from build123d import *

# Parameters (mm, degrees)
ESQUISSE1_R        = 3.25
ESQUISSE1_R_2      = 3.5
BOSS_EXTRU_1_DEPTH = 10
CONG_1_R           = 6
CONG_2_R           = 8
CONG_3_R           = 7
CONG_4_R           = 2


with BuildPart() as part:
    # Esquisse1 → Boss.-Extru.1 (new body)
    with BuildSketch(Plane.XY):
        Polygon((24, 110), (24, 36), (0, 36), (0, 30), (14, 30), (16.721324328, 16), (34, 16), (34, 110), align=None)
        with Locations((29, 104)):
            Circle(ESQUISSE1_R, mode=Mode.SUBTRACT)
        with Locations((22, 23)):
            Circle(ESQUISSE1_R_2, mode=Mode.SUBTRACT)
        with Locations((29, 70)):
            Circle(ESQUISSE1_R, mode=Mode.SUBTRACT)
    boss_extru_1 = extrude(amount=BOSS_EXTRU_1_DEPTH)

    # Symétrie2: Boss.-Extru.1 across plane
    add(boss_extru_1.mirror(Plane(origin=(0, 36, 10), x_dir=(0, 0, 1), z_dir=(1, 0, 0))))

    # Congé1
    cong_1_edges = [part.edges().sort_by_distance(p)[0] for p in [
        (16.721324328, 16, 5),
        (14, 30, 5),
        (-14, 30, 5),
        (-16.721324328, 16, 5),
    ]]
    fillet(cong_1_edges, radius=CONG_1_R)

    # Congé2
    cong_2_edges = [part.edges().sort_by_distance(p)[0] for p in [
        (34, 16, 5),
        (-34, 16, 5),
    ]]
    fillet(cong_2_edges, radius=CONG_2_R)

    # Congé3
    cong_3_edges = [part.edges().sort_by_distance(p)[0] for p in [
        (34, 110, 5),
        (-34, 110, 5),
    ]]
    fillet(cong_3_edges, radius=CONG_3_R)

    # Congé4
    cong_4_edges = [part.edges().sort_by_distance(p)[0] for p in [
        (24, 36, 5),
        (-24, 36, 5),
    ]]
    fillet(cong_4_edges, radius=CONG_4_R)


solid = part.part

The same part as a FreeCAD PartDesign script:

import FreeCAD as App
import Part
import Sketcher

V = App.Vector
Q = App.Units.Quantity


def edges_at(feature, points):
    """Names of the edges that pass closest to the given points."""
    edges = feature.Shape.Edges
    near = lambda p: min(range(len(edges)), key=lambda i: edges[i].distToShape(Part.Vertex(*p))[0])
    return sorted({f"Edge{near(p) + 1}" for p in points})

doc = App.newDocument("Part")
body = doc.addObject("PartDesign::Body", "Body")

# Sketch on XY plane
sketch1 = body.newObject("Sketcher::SketchObject", "Sketch")
sketch1.AttachmentSupport = (doc.getObject("XY_Plane"), [""])
sketch1.MapMode = "FlatFace"
sketch1.addGeometry([
    Part.LineSegment(V(24, 110, 0), V(24, 36, 0)),  # 0
    Part.LineSegment(V(24, 36, 0), V(0, 36, 0)),  # 1
    Part.LineSegment(V(0, 36, 0), V(0, 30, 0)),  # 2
    Part.LineSegment(V(0, 30, 0), V(14, 30, 0)),  # 3
    Part.LineSegment(V(14, 30, 0), V(16.7, 16, 0)),  # 4
    Part.LineSegment(V(16.7, 16, 0), V(34, 16, 0)),  # 5
    Part.LineSegment(V(34, 16, 0), V(34, 110, 0)),  # 6
    Part.LineSegment(V(34, 110, 0), V(24, 110, 0)),  # 7
    Part.Circle(V(22, 23, 0), V(0, 0, 1), 3.5),  # 8
    Part.Circle(V(29, 70, 0), V(0, 0, 1), 3.2),  # 9
    Part.Circle(V(29, 104, 0), V(0, 0, 1), 3.2),  # 10
], False)
sketch1.addConstraint([
    Sketcher.Constraint("Coincident", 0, 2, 1, 1),
    Sketcher.Constraint("Coincident", 1, 2, 2, 1),
    Sketcher.Constraint("Coincident", 2, 2, 3, 1),
    Sketcher.Constraint("Coincident", 3, 2, 4, 1),
    Sketcher.Constraint("Coincident", 4, 2, 5, 1),
    Sketcher.Constraint("Coincident", 5, 2, 6, 1),
    Sketcher.Constraint("Coincident", 6, 2, 7, 1),
    Sketcher.Constraint("Coincident", 7, 2, 0, 1),
    Sketcher.Constraint("Vertical", 0),
    Sketcher.Constraint("Horizontal", 1),
    Sketcher.Constraint("Vertical", 2),
    Sketcher.Constraint("Horizontal", 3),
    Sketcher.Constraint("Horizontal", 5),
    Sketcher.Constraint("Vertical", 6),
    Sketcher.Constraint("Horizontal", 7),
    Sketcher.Constraint("Equal", 9, 10),
    Sketcher.Constraint("PointOnObject", 1, 2, -2),
    Sketcher.Constraint("Vertical", 9, 3, 10, 3),
    Sketcher.Constraint("Diameter", 8, Q("7 mm")),
    Sketcher.Constraint("Diameter", 9, Q("6.5 mm")),
    Sketcher.Constraint("DistanceX", 1, 2, 1, 1, Q("24 mm")),
    Sketcher.Constraint("DistanceX", 3, 1, 3, 2, Q("14 mm")),
    Sketcher.Constraint("DistanceX", 7, 2, 7, 1, Q("10 mm")),
    Sketcher.Constraint("DistanceY", 0, 2, 0, 1, Q("74 mm")),
    Sketcher.Constraint("DistanceY", 2, 2, 2, 1, Q("6 mm")),
    Sketcher.Constraint("DistanceY", 6, 1, 6, 2, Q("94 mm")),
    Sketcher.Constraint("Angle", 4, Q("-79 deg")),
    Sketcher.Constraint("DistanceX", -1, 1, 8, 3, Q("22 mm")),
    Sketcher.Constraint("DistanceY", -1, 1, 8, 3, Q("23 mm")),
    Sketcher.Constraint("DistanceX", -1, 1, 9, 3, Q("29 mm")),
    Sketcher.Constraint("DistanceY", -1, 1, 9, 3, Q("70 mm")),
    Sketcher.Constraint("DistanceY", -1, 1, 10, 3, Q("104 mm")),
    Sketcher.Constraint("DistanceY", -1, 1, 0, 2, Q("36 mm")),
])
pad1 = body.newObject("PartDesign::Pad", "Pad")
pad1.Profile = sketch1
pad1.Length = 10
doc.recompute()

mirrored = body.newObject("PartDesign::Mirrored", "Mirrored")
mirrored.Originals = [pad1]
mirrored.MirrorPlane = (doc.getObject("YZ_Plane"), [""])
body.Tip = mirrored
doc.recompute()

fillet = body.newObject("PartDesign::Fillet", "Fillet")
fillet.Base = (mirrored, edges_at(mirrored, [
    (16.721, 16, 5),
    (14, 30, 5),
    (-14, 30, 5),
    (-16.721, 16, 5),
]))
fillet.Radius = 6
doc.recompute()

fillet2 = body.newObject("PartDesign::Fillet", "Fillet001")
fillet2.Base = (fillet, edges_at(fillet, [(34, 16, 5), (-34, 16, 5)]))
fillet2.Radius = 8
doc.recompute()

fillet3 = body.newObject("PartDesign::Fillet", "Fillet002")
fillet3.Base = (fillet2, edges_at(fillet2, [(34, 110, 5), (-34, 110, 5)]))
fillet3.Radius = 7
doc.recompute()

fillet4 = body.newObject("PartDesign::Fillet", "Fillet003")
fillet4.Base = (fillet3, edges_at(fillet3, [(24, 36, 5), (-24, 36, 5)]))
fillet4.Radius = 2

doc.recompute()
